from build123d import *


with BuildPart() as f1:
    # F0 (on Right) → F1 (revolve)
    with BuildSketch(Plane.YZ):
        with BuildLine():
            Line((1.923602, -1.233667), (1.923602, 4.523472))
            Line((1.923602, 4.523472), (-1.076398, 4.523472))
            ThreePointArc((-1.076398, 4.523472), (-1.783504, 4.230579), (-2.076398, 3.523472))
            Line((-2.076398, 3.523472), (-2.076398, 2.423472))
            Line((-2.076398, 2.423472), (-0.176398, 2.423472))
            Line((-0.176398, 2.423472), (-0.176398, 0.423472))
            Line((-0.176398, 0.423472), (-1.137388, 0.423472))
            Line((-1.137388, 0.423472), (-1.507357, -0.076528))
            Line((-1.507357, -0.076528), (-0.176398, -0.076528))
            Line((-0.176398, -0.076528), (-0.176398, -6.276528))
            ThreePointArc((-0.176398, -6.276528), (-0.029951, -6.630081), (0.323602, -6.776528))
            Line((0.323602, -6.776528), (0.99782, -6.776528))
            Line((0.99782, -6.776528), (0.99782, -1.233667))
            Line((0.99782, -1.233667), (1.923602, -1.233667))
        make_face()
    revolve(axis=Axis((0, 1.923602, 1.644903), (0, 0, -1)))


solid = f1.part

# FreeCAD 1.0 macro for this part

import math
import FreeCAD as App
import Part
import Sketcher

V = App.Vector

doc = App.newDocument("Part")
body = doc.addObject("PartDesign::Body", "Body")

# Sketch on YZ plane
sketch1 = body.newObject("Sketcher::SketchObject", "Sketch")
sketch1.AttachmentSupport = (doc.getObject("YZ_Plane"), [""])
sketch1.MapMode = "FlatFace"
sketch1.addGeometry([
    Part.LineSegment(V(1.9, -1.2, 0), V(1.9, 4.5, 0)),  # 0
    Part.LineSegment(V(1.9, 4.5, 0), V(-1.1, 4.5, 0)),  # 1
    Part.ArcOfCircle(Part.Circle(V(-1.1, 3.5, 0), V(0, 0, 1), 1), math.radians(90), math.radians(180)),  # 2
    Part.LineSegment(V(-2.1, 3.5, 0), V(-2.1, 2.4, 0)),  # 3
    Part.LineSegment(V(-2.1, 2.4, 0), V(-0.2, 2.4, 0)),  # 4
    Part.LineSegment(V(-0.2, 2.4, 0), V(-0.2, 0.4, 0)),  # 5
    Part.LineSegment(V(-0.2, 0.4, 0), V(-1.1, 0.4, 0)),  # 6
    Part.LineSegment(V(-1.1, 0.4, 0), V(-1.5, -0.1, 0)),  # 7
    Part.LineSegment(V(-1.5, -0.1, 0), V(-0.2, -0.1, 0)),  # 8
    Part.LineSegment(V(-0.2, -0.1, 0), V(-0.2, -6.3, 0)),  # 9
    Part.ArcOfCircle(Part.Circle(V(0.3, -6.3, 0), V(0, 0, 1), 0.5), math.radians(-180), math.radians(-90)),  # 10
    Part.LineSegment(V(0.3, -6.8, 0), V(1, -6.8, 0)),  # 11
    Part.LineSegment(V(1, -6.8, 0), V(1, -1.2, 0)),  # 12
    Part.LineSegment(V(1, -1.2, 0), V(1.9, -1.2, 0)),  # 13
], False)
sketch1.addGeometry(Part.LineSegment(V(1.9, 4.5, 0), V(1.9, -6.8, 0)), True)  # axis
sketch1.addConstraint([
    Sketcher.Constraint("Coincident", 0, 2, 1, 1),
    Sketcher.Constraint("Tangent", 1, 2, 2, 1),
    Sketcher.Constraint("Tangent", 2, 2, 3, 1),
    Sketcher.Constraint("Coincident", 3, 2, 4, 1),
    Sketcher.Constraint("Coincident", 4, 2, 5, 1),
    Sketcher.Constraint("Coincident", 5, 2, 6, 1),
    Sketcher.Constraint("Coincident", 6, 2, 7, 1),
    Sketcher.Constraint("Coincident", 7, 2, 8, 1),
    Sketcher.Constraint("Coincident", 8, 2, 9, 1),
    Sketcher.Constraint("Coincident", 9, 2, 10, 1),
    Sketcher.Constraint("Coincident", 10, 2, 11, 1),
    Sketcher.Constraint("Coincident", 11, 2, 12, 1),
    Sketcher.Constraint("Coincident", 12, 2, 13, 1),
    Sketcher.Constraint("Coincident", 13, 2, 0, 1),
    Sketcher.Constraint("Vertical", 0),
    Sketcher.Constraint("Horizontal", 1),
    Sketcher.Constraint("Vertical", 3),
    Sketcher.Constraint("Horizontal", 4),
    Sketcher.Constraint("Vertical", 5),
    Sketcher.Constraint("Horizontal", 6),
    Sketcher.Constraint("Horizontal", 8),
    Sketcher.Constraint("Vertical", 9),
    Sketcher.Constraint("Horizontal", 11),
    Sketcher.Constraint("Vertical", 12),
    Sketcher.Constraint("Horizontal", 13),
    Sketcher.Constraint("Vertical", 14),
    Sketcher.Constraint("Coincident", 14, 1, 0, 2),
    Sketcher.Constraint("Horizontal", 10, 3, 9, 2),
    Sketcher.Constraint("Horizontal", 11, 2, 14, 2),
    Sketcher.Constraint("Vertical", 5, 2, 8, 2),
    Sketcher.Constraint("Radius", 2, 1.000001),
    Sketcher.Constraint("Radius", 10, 0.500001),
    Sketcher.Constraint("DistanceX", 1, 2, 1, 1, 3.0),
    Sketcher.Constraint("DistanceY", 5, 2, 5, 1, 2.0),
    Sketcher.Constraint("DistanceX", 4, 1, 4, 2, 1.9),
    Sketcher.Constraint("DistanceY", 3, 2, 3, 1, 1.1),
    Sketcher.Constraint("DistanceY", 9, 2, 9, 1, 6.2),
    Sketcher.Constraint("DistanceY", 14, 2, 14, 1, 11.3),
    Sketcher.Constraint("DistanceX", 9, 2, 10, 2, 0.5),
    Sketcher.Constraint("DistanceX", 6, 2, 6, 1, 0.96099),
    Sketcher.Constraint("DistanceX", 8, 1, 8, 2, 1.330959),
    Sketcher.Constraint("DistanceX", 13, 1, 13, 2, 0.925782),
    Sketcher.Constraint("DistanceY", 0, 1, 0, 2, 5.757139),
    Sketcher.Constraint("DistanceX", 3, 2, -1, 1, 2.076398),
    Sketcher.Constraint("DistanceY", -1, 1, 2, 3, 3.523471),
])
revolution = body.newObject("PartDesign::Revolution", "Revolution")
revolution.Profile = sketch1
revolution.ReferenceAxis = (sketch1, ["Axis0"])
revolution.Angle = 360

doc.recompute()
